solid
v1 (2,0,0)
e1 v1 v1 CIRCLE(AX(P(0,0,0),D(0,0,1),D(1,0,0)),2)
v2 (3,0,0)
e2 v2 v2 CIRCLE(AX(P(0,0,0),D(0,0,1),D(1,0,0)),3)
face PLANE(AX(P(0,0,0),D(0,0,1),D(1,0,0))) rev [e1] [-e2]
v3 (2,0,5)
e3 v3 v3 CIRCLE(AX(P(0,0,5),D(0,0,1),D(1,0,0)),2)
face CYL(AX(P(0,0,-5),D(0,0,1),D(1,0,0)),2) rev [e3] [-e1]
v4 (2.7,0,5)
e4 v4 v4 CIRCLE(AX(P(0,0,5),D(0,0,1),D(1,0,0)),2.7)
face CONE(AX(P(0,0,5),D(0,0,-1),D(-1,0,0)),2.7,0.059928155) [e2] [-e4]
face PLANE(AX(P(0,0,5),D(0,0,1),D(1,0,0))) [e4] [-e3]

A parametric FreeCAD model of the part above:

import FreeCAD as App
import Part
import Sketcher
Q = App.Units.Quantity

doc = App.newDocument("Part")
params = doc.addObject("Spreadsheet::Sheet", "Params")
for row, (alias, value) in enumerate([
    ("sketch1_diameter", "6 mm"),
    ("sketch2_diameter", "5.4 mm"),
    ("sketch3_diameter", "4 mm"),
    ("pocket1_length", "10 mm"),
], start=1):
    params.set(f"A{row}", alias)
    params.set(f"B{row}", "=" + value)
    params.setAlias(f"B{row}", alias)

body = doc.addObject("PartDesign::Body", "Body")

sketch1 = doc.addObject("Sketcher::SketchObject", "Sketch")
body.addObject(sketch1)
sketch1.AttachmentSupport = (doc.XY_Plane, [""])
sketch1.MapMode = "FlatFace"
sketch1.addGeometry(Part.Circle(App.Vector(0, 0, 0), App.Vector(0, 0, 1), 3), False)
sketch1.addConstraint([
    Sketcher.Constraint("Coincident", 0, 3, -1, 1),
    Sketcher.Constraint("Diameter", 0, Q("6 mm")),
])
sketch1.setExpression("Constraints[1]", "Params.sketch1_diameter")

sketch2 = doc.addObject("Sketcher::SketchObject", "Sketch001")
body.addObject(sketch2)
sketch2.AttachmentSupport = (doc.XY_Plane, [""])
sketch2.MapMode = "FlatFace"
sketch2.AttachmentOffset = App.Placement(App.Vector(0, 0, 5), App.Rotation())
sketch2.addGeometry(Part.Circle(App.Vector(0, 0, 0), App.Vector(0, 0, 1), 2.7), False)
sketch2.addConstraint([
    Sketcher.Constraint("Coincident", 0, 3, -1, 1),
    Sketcher.Constraint("Diameter", 0, Q("5.4 mm")),
])
sketch2.setExpression("Constraints[1]", "Params.sketch2_diameter")

additiveloft = doc.addObject("PartDesign::AdditiveLoft", "AdditiveLoft")
body.addObject(additiveloft)
additiveloft.Profile = sketch1
additiveloft.Sections = [sketch2]

sketch3 = doc.addObject("Sketcher::SketchObject", "Sketch002")
body.addObject(sketch3)
sketch3.AttachmentSupport = (doc.XY_Plane, [""])
sketch3.MapMode = "FlatFace"
sketch3.AttachmentOffset = App.Placement(App.Vector(0, 0, 5), App.Rotation())
sketch3.addGeometry(Part.Circle(App.Vector(0, 0, 0), App.Vector(0, 0, 1), 2), False)
sketch3.addConstraint([
    Sketcher.Constraint("Coincident", 0, 3, -1, 1),
    Sketcher.Constraint("Diameter", 0, Q("4 mm")),
])
sketch3.setExpression("Constraints[1]", "Params.sketch3_diameter")
pocket1 = doc.addObject("PartDesign::Pocket", "Pocket")
body.addObject(pocket1)
pocket1.Profile = sketch3
pocket1.setExpression("Length", "Params.pocket1_length")

doc.recompute()
